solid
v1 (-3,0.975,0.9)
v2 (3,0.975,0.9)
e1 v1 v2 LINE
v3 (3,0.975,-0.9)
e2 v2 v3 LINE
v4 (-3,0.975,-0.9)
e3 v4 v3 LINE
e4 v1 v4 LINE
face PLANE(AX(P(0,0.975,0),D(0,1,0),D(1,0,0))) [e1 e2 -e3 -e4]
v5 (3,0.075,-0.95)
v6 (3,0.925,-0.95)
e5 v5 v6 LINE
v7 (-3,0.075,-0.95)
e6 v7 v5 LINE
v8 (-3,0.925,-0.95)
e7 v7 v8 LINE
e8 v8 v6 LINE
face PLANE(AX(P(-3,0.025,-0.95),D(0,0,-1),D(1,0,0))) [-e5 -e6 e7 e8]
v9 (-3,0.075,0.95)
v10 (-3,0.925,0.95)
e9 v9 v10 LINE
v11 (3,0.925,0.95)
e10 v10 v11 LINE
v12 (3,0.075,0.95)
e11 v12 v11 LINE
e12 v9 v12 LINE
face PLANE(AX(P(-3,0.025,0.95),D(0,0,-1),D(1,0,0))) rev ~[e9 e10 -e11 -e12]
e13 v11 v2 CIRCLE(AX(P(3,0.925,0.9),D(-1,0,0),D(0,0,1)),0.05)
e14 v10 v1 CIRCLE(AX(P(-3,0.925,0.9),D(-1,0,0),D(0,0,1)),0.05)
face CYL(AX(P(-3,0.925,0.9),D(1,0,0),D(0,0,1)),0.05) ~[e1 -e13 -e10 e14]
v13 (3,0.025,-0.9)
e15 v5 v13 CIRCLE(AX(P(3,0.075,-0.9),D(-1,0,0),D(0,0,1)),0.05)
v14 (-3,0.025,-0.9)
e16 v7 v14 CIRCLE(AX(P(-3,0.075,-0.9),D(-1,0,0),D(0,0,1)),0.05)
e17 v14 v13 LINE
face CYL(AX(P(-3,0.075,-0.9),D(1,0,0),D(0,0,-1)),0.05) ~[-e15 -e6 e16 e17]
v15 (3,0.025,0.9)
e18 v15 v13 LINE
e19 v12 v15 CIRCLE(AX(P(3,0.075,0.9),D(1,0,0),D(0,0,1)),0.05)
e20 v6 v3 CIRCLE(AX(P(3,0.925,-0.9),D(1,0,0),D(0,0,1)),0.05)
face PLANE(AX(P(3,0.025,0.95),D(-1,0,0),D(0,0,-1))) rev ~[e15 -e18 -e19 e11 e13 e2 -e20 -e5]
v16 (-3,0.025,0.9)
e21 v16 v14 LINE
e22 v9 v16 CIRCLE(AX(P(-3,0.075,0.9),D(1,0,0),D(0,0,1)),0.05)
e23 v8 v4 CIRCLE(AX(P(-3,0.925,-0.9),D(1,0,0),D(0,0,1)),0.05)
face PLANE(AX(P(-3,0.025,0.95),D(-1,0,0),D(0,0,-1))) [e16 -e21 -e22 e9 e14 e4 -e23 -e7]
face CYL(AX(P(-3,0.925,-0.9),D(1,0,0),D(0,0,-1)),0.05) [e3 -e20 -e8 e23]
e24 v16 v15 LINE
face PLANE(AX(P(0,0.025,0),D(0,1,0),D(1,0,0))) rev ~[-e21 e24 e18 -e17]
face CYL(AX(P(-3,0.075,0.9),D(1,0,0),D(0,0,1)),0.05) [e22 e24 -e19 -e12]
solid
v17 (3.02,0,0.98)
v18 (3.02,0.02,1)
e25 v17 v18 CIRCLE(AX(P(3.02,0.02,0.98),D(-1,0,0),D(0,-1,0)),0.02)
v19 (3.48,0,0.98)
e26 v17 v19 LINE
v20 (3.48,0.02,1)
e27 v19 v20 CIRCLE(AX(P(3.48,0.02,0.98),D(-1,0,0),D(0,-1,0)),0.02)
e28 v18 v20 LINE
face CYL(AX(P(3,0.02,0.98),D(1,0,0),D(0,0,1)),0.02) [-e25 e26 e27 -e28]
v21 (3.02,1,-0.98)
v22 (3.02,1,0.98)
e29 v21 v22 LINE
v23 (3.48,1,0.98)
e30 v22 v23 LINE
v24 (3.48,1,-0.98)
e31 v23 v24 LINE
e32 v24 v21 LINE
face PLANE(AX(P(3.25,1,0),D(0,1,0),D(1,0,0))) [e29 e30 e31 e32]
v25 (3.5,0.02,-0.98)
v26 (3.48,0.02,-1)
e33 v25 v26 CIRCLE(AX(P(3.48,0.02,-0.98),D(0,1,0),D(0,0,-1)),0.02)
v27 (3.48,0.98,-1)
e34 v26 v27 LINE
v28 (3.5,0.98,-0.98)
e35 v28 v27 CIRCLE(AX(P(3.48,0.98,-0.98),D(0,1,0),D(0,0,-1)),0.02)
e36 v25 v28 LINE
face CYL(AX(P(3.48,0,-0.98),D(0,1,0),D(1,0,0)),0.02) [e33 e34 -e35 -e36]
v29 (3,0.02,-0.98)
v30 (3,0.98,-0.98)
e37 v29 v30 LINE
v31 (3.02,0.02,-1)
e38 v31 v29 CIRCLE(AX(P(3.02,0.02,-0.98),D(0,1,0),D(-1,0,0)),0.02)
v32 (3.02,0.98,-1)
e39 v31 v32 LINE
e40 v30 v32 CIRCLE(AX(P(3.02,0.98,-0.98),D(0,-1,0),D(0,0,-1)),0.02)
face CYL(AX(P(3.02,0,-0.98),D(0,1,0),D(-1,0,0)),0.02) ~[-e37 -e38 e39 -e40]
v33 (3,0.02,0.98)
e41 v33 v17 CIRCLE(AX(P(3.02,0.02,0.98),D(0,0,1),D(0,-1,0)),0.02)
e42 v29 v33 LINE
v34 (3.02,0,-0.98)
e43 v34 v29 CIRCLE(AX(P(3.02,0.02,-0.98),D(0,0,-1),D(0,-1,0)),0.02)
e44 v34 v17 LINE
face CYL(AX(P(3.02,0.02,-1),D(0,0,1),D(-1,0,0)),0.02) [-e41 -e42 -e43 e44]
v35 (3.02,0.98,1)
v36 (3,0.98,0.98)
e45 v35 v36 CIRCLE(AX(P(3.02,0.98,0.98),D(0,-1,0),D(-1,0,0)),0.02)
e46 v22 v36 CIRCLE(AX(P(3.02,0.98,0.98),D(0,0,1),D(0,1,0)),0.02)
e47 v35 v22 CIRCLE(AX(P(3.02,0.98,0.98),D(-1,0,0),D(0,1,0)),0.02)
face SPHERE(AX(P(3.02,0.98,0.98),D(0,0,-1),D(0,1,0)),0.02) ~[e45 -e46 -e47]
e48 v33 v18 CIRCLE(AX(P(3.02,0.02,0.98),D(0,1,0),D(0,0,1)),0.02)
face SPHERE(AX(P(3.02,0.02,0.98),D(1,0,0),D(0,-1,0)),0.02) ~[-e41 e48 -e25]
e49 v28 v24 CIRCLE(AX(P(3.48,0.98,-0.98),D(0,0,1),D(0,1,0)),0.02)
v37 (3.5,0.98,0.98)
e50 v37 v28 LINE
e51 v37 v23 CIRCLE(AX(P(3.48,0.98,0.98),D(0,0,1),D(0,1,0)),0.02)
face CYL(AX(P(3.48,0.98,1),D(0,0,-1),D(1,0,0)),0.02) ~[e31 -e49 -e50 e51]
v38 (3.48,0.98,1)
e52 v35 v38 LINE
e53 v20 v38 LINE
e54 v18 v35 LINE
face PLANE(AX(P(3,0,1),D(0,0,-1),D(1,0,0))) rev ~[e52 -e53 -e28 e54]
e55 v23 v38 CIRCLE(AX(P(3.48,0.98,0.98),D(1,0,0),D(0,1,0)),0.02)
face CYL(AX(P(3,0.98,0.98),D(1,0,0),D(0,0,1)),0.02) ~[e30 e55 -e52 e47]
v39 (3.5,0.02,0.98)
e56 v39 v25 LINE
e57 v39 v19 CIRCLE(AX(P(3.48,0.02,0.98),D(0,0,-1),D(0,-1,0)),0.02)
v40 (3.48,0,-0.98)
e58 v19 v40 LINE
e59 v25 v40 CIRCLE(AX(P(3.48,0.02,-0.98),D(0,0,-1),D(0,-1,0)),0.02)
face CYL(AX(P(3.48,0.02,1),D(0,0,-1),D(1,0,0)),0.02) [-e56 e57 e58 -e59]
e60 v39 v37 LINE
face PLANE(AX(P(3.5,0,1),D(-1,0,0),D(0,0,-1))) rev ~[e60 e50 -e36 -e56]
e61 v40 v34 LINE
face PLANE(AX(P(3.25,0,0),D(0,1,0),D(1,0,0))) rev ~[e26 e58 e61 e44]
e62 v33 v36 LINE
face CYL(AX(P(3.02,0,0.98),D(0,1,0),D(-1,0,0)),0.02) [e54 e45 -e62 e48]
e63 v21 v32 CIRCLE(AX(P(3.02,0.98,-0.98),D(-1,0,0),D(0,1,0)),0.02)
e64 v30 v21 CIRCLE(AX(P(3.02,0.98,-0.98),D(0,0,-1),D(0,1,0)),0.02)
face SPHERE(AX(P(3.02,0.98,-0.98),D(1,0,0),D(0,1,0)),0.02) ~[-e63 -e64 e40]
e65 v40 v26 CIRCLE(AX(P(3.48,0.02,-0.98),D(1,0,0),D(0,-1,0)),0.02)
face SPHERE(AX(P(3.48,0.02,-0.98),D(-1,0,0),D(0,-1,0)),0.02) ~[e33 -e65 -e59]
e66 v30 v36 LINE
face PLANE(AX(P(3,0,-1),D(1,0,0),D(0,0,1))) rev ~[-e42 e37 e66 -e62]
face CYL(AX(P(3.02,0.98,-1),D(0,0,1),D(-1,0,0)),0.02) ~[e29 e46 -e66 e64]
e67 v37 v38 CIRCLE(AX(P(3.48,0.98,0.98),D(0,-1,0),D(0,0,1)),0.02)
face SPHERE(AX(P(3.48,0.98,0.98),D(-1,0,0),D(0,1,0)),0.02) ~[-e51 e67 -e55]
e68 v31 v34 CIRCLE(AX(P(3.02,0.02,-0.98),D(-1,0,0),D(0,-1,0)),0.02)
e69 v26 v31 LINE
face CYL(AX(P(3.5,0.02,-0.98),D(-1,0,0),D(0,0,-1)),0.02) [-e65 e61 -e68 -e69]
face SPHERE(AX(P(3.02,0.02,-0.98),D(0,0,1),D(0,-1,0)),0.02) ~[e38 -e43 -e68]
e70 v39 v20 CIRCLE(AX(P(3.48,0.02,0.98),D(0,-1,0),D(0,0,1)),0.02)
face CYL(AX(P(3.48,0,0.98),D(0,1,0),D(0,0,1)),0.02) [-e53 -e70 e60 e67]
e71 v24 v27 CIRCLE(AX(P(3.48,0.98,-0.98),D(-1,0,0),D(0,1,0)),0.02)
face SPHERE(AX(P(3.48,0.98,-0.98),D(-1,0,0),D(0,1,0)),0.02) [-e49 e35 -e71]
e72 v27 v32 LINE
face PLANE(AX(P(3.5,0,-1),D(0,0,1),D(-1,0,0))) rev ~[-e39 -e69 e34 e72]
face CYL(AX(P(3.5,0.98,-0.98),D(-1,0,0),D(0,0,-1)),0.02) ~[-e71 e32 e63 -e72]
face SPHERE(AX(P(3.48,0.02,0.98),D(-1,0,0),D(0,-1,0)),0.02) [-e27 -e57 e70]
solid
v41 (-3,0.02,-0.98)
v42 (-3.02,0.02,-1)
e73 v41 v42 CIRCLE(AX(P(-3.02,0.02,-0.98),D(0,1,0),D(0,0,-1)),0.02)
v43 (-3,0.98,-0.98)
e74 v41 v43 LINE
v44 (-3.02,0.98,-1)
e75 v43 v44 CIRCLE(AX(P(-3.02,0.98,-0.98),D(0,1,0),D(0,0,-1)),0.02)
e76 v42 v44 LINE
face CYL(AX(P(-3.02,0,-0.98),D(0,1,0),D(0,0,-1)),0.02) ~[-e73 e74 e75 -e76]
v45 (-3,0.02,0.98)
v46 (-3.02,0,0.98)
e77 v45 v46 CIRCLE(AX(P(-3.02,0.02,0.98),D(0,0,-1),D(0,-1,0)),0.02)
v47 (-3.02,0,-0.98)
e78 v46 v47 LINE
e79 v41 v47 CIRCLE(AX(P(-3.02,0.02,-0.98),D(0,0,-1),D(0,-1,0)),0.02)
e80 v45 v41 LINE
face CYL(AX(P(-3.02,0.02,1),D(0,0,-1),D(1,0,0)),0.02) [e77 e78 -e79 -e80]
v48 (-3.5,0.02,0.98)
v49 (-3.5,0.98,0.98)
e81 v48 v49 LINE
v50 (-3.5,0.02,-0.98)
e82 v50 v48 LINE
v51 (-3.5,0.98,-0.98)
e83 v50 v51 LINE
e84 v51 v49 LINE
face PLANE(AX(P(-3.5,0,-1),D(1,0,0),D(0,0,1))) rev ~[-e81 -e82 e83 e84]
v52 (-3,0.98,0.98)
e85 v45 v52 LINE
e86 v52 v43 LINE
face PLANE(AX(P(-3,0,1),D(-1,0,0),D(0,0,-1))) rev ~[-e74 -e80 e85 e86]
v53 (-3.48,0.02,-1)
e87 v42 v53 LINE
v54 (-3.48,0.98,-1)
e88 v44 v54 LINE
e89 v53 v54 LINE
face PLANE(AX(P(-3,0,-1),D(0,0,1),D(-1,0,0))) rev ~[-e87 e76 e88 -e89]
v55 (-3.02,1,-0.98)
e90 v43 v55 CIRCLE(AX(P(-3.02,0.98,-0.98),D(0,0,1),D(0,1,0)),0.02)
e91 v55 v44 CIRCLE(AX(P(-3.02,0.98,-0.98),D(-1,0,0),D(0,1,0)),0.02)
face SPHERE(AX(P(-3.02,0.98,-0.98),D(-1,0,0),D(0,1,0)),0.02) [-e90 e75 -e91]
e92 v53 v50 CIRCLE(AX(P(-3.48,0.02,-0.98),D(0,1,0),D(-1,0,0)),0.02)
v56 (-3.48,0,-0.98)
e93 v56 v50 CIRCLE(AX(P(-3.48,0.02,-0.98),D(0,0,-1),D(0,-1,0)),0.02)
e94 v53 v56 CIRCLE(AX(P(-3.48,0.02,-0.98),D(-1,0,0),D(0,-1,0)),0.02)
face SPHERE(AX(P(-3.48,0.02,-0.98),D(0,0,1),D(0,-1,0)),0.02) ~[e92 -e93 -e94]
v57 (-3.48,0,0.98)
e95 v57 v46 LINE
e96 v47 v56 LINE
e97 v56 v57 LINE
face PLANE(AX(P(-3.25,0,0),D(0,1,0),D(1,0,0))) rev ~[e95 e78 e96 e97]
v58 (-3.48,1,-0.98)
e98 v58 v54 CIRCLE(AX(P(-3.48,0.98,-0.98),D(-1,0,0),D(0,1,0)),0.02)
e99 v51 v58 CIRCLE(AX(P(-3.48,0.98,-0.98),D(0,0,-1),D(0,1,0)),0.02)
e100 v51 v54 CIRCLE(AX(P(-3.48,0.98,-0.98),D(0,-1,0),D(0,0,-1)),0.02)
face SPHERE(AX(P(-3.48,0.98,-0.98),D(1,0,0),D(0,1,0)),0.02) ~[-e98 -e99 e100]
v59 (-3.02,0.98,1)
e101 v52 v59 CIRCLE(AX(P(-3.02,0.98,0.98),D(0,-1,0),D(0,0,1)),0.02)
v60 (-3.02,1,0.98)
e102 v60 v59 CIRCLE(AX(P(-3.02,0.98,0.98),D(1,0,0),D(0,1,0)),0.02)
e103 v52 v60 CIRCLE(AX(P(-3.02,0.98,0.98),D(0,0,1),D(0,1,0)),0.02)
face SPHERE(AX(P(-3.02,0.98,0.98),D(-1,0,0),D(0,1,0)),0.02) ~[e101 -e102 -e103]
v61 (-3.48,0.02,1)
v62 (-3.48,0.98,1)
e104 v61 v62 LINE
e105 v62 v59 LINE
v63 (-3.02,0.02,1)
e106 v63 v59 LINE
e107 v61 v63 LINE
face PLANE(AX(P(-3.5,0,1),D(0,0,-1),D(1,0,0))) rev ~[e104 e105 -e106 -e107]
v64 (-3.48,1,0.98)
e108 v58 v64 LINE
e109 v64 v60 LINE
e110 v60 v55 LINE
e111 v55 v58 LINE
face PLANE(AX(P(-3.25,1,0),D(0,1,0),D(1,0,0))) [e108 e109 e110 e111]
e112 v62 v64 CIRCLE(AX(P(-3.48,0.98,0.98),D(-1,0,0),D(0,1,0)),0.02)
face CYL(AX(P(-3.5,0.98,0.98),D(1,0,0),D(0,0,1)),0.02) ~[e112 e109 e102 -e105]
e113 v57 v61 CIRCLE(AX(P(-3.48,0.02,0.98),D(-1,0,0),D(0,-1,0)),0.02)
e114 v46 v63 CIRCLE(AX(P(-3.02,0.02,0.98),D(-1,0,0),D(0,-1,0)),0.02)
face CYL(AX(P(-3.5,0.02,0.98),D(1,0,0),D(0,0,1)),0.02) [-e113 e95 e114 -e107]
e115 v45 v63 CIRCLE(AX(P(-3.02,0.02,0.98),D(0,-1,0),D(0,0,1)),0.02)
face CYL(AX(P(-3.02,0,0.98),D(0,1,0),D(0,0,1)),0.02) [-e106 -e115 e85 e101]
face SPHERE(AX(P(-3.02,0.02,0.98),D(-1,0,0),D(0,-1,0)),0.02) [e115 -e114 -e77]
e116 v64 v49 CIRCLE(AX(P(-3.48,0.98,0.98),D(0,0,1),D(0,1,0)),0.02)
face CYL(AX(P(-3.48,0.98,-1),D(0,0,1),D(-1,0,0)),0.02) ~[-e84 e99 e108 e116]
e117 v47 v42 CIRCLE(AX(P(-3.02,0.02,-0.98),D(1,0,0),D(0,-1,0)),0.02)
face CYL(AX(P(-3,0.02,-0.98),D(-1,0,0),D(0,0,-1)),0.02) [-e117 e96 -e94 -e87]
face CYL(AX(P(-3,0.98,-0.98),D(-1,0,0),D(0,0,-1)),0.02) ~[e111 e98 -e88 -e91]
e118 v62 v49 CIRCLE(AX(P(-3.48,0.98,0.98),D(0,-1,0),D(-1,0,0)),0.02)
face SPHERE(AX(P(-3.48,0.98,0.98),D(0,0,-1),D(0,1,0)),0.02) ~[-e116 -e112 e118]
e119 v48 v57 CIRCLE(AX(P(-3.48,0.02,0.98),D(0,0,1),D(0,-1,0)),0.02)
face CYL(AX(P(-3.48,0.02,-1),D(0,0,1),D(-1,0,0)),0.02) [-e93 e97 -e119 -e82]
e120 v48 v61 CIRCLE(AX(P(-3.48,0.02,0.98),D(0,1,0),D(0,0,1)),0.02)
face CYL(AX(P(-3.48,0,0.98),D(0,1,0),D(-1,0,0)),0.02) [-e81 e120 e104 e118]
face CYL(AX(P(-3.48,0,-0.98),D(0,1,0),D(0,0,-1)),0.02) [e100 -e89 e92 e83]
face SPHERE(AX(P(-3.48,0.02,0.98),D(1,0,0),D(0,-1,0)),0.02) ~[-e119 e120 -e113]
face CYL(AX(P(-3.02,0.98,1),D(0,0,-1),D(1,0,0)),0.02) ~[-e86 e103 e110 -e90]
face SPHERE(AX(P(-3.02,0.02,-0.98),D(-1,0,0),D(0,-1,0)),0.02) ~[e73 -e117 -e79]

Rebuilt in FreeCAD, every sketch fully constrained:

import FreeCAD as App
import Part
import Sketcher

V = App.Vector
Q = App.Units.Quantity


def edges_at(feature, points):
    """Names of the edges that pass closest to the given points."""
    edges = feature.Shape.Edges
    near = lambda p: min(range(len(edges)), key=lambda i: edges[i].distToShape(Part.Vertex(*p))[0])
    return sorted({f"Edge{near(p) + 1}" for p in points})

doc = App.newDocument("Part")
body = doc.addObject("PartDesign::Body", "Body")

sketch1 = body.newObject("Sketcher::SketchObject", "Sketch")
sketch1.AttachmentSupport = (doc.getObject("XZ_Plane"), [""])
sketch1.MapMode = "FlatFace"
sketch1.addGeometry(Part.LineSegment(V(-3, -1, 0), V(-3.5, -1, 0)), False)
sketch1.addGeometry(Part.LineSegment(V(-3.5, -1, 0), V(-3.5, 1, 0)), False)
sketch1.addGeometry(Part.LineSegment(V(-3.5, 1, 0), V(-3, 1, 0)), False)
sketch1.addGeometry(Part.LineSegment(V(-3, 1, 0), V(-3, -1, 0)), False)
sketch1.addConstraint(Sketcher.Constraint("Coincident", 0, 2, 1, 1))
sketch1.addConstraint(Sketcher.Constraint("Coincident", 1, 2, 2, 1))
sketch1.addConstraint(Sketcher.Constraint("Coincident", 2, 2, 3, 1))
sketch1.addConstraint(Sketcher.Constraint("Coincident", 3, 2, 0, 1))
sketch1.addConstraint(Sketcher.Constraint("Horizontal", 0))
sketch1.addConstraint(Sketcher.Constraint("Vertical", 1))
sketch1.addConstraint(Sketcher.Constraint("Horizontal", 2))
sketch1.addConstraint(Sketcher.Constraint("Vertical", 3))
sketch1.addConstraint(Sketcher.Constraint("DistanceY", 1, 1, 1, 2, Q("2 mm")))
sketch1.addConstraint(Sketcher.Constraint("DistanceX", 0, 2, 0, 1, Q("0.5 mm")))
sketch1.addConstraint(Sketcher.Constraint("DistanceY", 0, 2, -1, 1, Q("1 mm")))
sketch1.addConstraint(Sketcher.Constraint("DistanceX", 2, 2, -1, 1, Q("3 mm")))
pad1 = body.newObject("PartDesign::Pad", "Pad")
pad1.Profile = sketch1
pad1.Length = 1
pad1.Reversed = True
doc.recompute()

fillet = body.newObject("PartDesign::Fillet", "Fillet")
fillet.Base = (pad1, ["Edge1"])
fillet.UseAllEdges = True
fillet.Radius = 0.02
body2 = doc.addObject("PartDesign::Body", "Body001")

sketch2 = body2.newObject("Sketcher::SketchObject", "Sketch001")
sketch2.AttachmentSupport = (doc.getObject("XZ_Plane001"), [""])
sketch2.MapMode = "FlatFace"
sketch2.addGeometry(Part.LineSegment(V(3, -1, 0), V(3, 1, 0)), False)
sketch2.addGeometry(Part.LineSegment(V(3, 1, 0), V(3.5, 1, 0)), False)
sketch2.addGeometry(Part.LineSegment(V(3.5, 1, 0), V(3.5, -1, 0)), False)
sketch2.addGeometry(Part.LineSegment(V(3.5, -1, 0), V(3, -1, 0)), False)
sketch2.addConstraint(Sketcher.Constraint("Coincident", 0, 2, 1, 1))
sketch2.addConstraint(Sketcher.Constraint("Coincident", 1, 2, 2, 1))
sketch2.addConstraint(Sketcher.Constraint("Coincident", 2, 2, 3, 1))
sketch2.addConstraint(Sketcher.Constraint("Coincident", 3, 2, 0, 1))
sketch2.addConstraint(Sketcher.Constraint("Vertical", 0))
sketch2.addConstraint(Sketcher.Constraint("Horizontal", 1))
sketch2.addConstraint(Sketcher.Constraint("Vertical", 2))
sketch2.addConstraint(Sketcher.Constraint("Horizontal", 3))
sketch2.addConstraint(Sketcher.Constraint("DistanceY", 0, 1, 0, 2, Q("2 mm")))
sketch2.addConstraint(Sketcher.Constraint("DistanceX", 1, 1, 1, 2, Q("0.5 mm")))
sketch2.addConstraint(Sketcher.Constraint("DistanceX", -1, 1, 0, 2, Q("3 mm")))
sketch2.addConstraint(Sketcher.Constraint("DistanceY", -1, 1, 0, 2, Q("1 mm")))
pad2 = body2.newObject("PartDesign::Pad", "Pad001")
pad2.Profile = sketch2
pad2.Length = 1
pad2.Reversed = True
doc.recompute()

fillet2 = body2.newObject("PartDesign::Fillet", "Fillet001")
fillet2.Base = (pad2, ["Edge1"])
fillet2.UseAllEdges = True
fillet2.Radius = 0.02
body3 = doc.addObject("PartDesign::Body", "Body002")

sketch3 = body3.newObject("Sketcher::SketchObject", "Sketch002")
sketch3.AttachmentSupport = (doc.getObject("XZ_Plane002"), [""])
sketch3.MapMode = "FlatFace"
sketch3.AttachmentOffset = App.Placement(V(0, 0, -0.025), App.Rotation())
sketch3.addGeometry(Part.LineSegment(V(-3, -0.9, 0), V(-3, 0.9, 0)), False)
sketch3.addGeometry(Part.LineSegment(V(-3, 0.9, 0), V(3, 0.9, 0)), False)
sketch3.addGeometry(Part.LineSegment(V(3, 0.9, 0), V(3, -0.9, 0)), False)
sketch3.addGeometry(Part.LineSegment(V(3, -0.9, 0), V(-3, -0.9, 0)), False)
sketch3.addConstraint(Sketcher.Constraint("Coincident", 0, 2, 1, 1))
sketch3.addConstraint(Sketcher.Constraint("Coincident", 1, 2, 2, 1))
sketch3.addConstraint(Sketcher.Constraint("Coincident", 2, 2, 3, 1))
sketch3.addConstraint(Sketcher.Constraint("Coincident", 3, 2, 0, 1))
sketch3.addConstraint(Sketcher.Constraint("Vertical", 0))
sketch3.addConstraint(Sketcher.Constraint("Horizontal", 1))
sketch3.addConstraint(Sketcher.Constraint("Vertical", 2))
sketch3.addConstraint(Sketcher.Constraint("Horizontal", 3))
sketch3.addConstraint(Sketcher.Constraint("Symmetric", 0, 2, 2, 2, -1, 1))
sketch3.addConstraint(Sketcher.Constraint("DistanceX", 1, 1, 1, 2, Q("6 mm")))
sketch3.addConstraint(Sketcher.Constraint("DistanceY", 0, 1, 0, 2, Q("1.9 mm")))
pad3 = body3.newObject("PartDesign::Pad", "Pad002")
pad3.Profile = sketch3
pad3.Length = 0.95
pad3.Reversed = True
doc.recompute()

fillet3 = body3.newObject("PartDesign::Fillet", "Fillet002")
fillet3.Base = (pad3, edges_at(pad3, [
    (0, 0.975, -0.95),
    (0, 0.975, 0.95),
    (0, 0.025, 0.95),
    (0, 0.025, -0.95),
]))
fillet3.Radius = 0.05

doc.recompute()
